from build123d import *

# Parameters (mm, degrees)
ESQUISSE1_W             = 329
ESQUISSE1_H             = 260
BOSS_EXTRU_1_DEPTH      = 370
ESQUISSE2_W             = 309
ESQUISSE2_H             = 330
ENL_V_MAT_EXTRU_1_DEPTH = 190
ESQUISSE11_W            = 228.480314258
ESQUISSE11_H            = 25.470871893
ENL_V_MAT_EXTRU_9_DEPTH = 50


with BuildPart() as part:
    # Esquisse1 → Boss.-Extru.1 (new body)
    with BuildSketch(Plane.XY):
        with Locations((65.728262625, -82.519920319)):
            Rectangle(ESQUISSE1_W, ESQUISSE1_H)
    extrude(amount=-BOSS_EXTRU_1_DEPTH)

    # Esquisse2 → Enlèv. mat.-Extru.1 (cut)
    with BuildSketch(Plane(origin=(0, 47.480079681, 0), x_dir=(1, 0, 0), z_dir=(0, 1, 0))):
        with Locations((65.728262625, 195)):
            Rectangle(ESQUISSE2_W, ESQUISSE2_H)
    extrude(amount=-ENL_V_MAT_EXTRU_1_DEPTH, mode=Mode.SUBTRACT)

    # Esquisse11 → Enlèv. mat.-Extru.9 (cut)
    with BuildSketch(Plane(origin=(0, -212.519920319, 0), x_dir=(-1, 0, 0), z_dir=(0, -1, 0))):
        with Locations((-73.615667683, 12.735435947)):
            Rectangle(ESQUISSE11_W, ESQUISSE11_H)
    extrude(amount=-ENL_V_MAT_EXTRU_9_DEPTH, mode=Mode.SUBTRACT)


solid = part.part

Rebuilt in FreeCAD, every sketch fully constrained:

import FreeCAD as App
import Part
import Sketcher
Q = App.Units.Quantity

doc = App.newDocument("Part")
body = doc.addObject("PartDesign::Body", "Body")

# Sketch on XY plane
sketch1 = doc.addObject("Sketcher::SketchObject", "Sketch")
body.addObject(sketch1)
sketch1.AttachmentSupport = (doc.XY_Plane, [""])
sketch1.MapMode = "FlatFace"
sketch1.addGeometry([
    Part.LineSegment(App.Vector(-99, 47, 0), App.Vector(-99, -213, 0)),
    Part.LineSegment(App.Vector(-99, -213, 0), App.Vector(230, -213, 0)),
    Part.LineSegment(App.Vector(230, -213, 0), App.Vector(230, 47, 0)),
    Part.LineSegment(App.Vector(230, 47, 0), App.Vector(-99, 47, 0)),
], False)
sketch1.addConstraint([
    Sketcher.Constraint("Coincident", 0, 2, 1, 1),
    Sketcher.Constraint("Coincident", 1, 2, 2, 1),
    Sketcher.Constraint("Coincident", 2, 2, 3, 1),
    Sketcher.Constraint("Coincident", 3, 2, 0, 1),
    Sketcher.Constraint("Vertical", 0),
    Sketcher.Constraint("Horizontal", 1),
    Sketcher.Constraint("Vertical", 2),
    Sketcher.Constraint("Horizontal", 3),
    Sketcher.Constraint("DistanceX", 1, 1, 1, 2, Q("329 mm")),
    Sketcher.Constraint("DistanceY", 0, 2, 0, 1, Q("260 mm")),
    Sketcher.Constraint("DistanceY", 0, 2, -1, 1, Q("212.51992 mm")),
    Sketcher.Constraint("DistanceX", 0, 2, -1, 1, Q("98.771737 mm")),
])
pad1 = doc.addObject("PartDesign::Pad", "Pad")
body.addObject(pad1)
pad1.Profile = sketch1
pad1.Length = 370
pad1.Reversed = True

# Sketch on XZ plane
sketch2 = doc.addObject("Sketcher::SketchObject", "Sketch001")
body.addObject(sketch2)
sketch2.AttachmentSupport = (doc.XZ_Plane, [""])
sketch2.MapMode = "FlatFace"
sketch2.AttachmentOffset = App.Placement(App.Vector(0, 0, -47.48008), App.Rotation())
sketch2.addGeometry([
    Part.LineSegment(App.Vector(-89, -360, 0), App.Vector(-89, -30, 0)),
    Part.LineSegment(App.Vector(-89, -30, 0), App.Vector(220, -30, 0)),
    Part.LineSegment(App.Vector(220, -30, 0), App.Vector(220, -360, 0)),
    Part.LineSegment(App.Vector(220, -360, 0), App.Vector(-89, -360, 0)),
], False)
sketch2.addConstraint([
    Sketcher.Constraint("Coincident", 0, 2, 1, 1),
    Sketcher.Constraint("Coincident", 1, 2, 2, 1),
    Sketcher.Constraint("Coincident", 2, 2, 3, 1),
    Sketcher.Constraint("Coincident", 3, 2, 0, 1),
    Sketcher.Constraint("Vertical", 0),
    Sketcher.Constraint("Horizontal", 1),
    Sketcher.Constraint("Vertical", 2),
    Sketcher.Constraint("Horizontal", 3),
    Sketcher.Constraint("DistanceX", 1, 1, 1, 2, Q("309 mm")),
    Sketcher.Constraint("DistanceY", 0, 1, 0, 2, Q("330 mm")),
    Sketcher.Constraint("DistanceY", 0, 2, -1, 1, Q("30 mm")),
    Sketcher.Constraint("DistanceX", 0, 2, -1, 1, Q("88.771737 mm")),
])
pocket1 = doc.addObject("PartDesign::Pocket", "Pocket")
body.addObject(pocket1)
pocket1.Profile = sketch2
pocket1.Length = 190
pocket1.Reversed = True

# Sketch on XZ plane
sketch3 = doc.addObject("Sketcher::SketchObject", "Sketch002")
body.addObject(sketch3)
sketch3.AttachmentSupport = (doc.XZ_Plane, [""])
sketch3.MapMode = "FlatFace"
sketch3.AttachmentOffset = App.Placement(App.Vector(0, 0, 212.51992), App.Rotation())
sketch3.addGeometry([
    Part.LineSegment(App.Vector(188, -25, 0), App.Vector(188, 0, 0)),
    Part.LineSegment(App.Vector(188, 0, 0), App.Vector(-41, 0, 0)),
    Part.LineSegment(App.Vector(-41, 0, 0), App.Vector(-41, -25, 0)),
    Part.LineSegment(App.Vector(-41, -25, 0), App.Vector(188, -25, 0)),
], False)
sketch3.addConstraint([
    Sketcher.Constraint("Coincident", 0, 2, 1, 1),
    Sketcher.Constraint("Coincident", 1, 2, 2, 1),
    Sketcher.Constraint("Coincident", 2, 2, 3, 1),
    Sketcher.Constraint("Coincident", 3, 2, 0, 1),
    Sketcher.Constraint("Vertical", 0),
    Sketcher.Constraint("Horizontal", 1),
    Sketcher.Constraint("Vertical", 2),
    Sketcher.Constraint("Horizontal", 3),
    Sketcher.Constraint("PointOnObject", 0, 2, -1),
    Sketcher.Constraint("DistanceY", 0, 1, 0, 2, Q("25.470872 mm")),
    Sketcher.Constraint("DistanceX", 1, 2, 1, 1, Q("228.480314 mm")),
    Sketcher.Constraint("DistanceX", 1, 2, -1, 1, Q("40.624489 mm")),
])
pocket2 = doc.addObject("PartDesign::Pocket", "Pocket001")
body.addObject(pocket2)
pocket2.Profile = sketch3
pocket2.Length = 50

doc.recompute()
